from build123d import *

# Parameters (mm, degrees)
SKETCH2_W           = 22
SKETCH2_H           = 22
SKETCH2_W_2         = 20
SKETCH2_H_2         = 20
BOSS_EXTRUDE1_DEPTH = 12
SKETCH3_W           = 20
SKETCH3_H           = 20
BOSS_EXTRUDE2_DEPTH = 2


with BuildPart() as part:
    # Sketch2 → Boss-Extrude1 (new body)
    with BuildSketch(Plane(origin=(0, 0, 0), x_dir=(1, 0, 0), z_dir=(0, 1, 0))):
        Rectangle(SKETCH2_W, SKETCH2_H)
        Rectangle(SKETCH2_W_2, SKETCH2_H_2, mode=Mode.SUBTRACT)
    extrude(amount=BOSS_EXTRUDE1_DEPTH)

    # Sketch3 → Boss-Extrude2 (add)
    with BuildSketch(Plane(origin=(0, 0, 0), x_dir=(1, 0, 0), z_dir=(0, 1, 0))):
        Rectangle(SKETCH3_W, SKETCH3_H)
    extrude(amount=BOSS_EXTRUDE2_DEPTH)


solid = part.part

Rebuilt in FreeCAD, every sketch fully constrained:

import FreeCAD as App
import Part
import Sketcher
from FreeCAD import Vector


def add_polygon(sketch, points):
    """Adds a closed chain of lines whose ends are joined by coincident constraints."""
    first, n = sketch.GeometryCount, len(points)
    for a, b in zip(points, points[1:] + points[:1]):
        sketch.addGeometry(Part.LineSegment(App.Vector(*a, 0), App.Vector(*b, 0)), False)
    for i in range(n):
        sketch.addConstraint(Sketcher.Constraint("Coincident", first + i, 2, first + (i + 1) % n, 1))

doc = App.newDocument("Part")
body = doc.addObject("PartDesign::Body", "Body")

# Sketch on XZ plane
sketch1 = doc.addObject("Sketcher::SketchObject", "Sketch")
body.addObject(sketch1)
sketch1.AttachmentSupport = (doc.XZ_Plane, [""])
sketch1.MapMode = "FlatFace"
add_polygon(sketch1, [(-11, -11), (-11, 11), (11, 11), (11, -11)])  # lines 0-3
add_polygon(sketch1, [(10, 10), (-10, 10), (-10, -10), (10, -10)])  # lines 4-7
sketch1.addConstraint(Sketcher.Constraint("Vertical", 0))
sketch1.addConstraint(Sketcher.Constraint("Horizontal", 1))
sketch1.addConstraint(Sketcher.Constraint("Vertical", 2))
sketch1.addConstraint(Sketcher.Constraint("Horizontal", 3))
sketch1.addConstraint(Sketcher.Constraint("Horizontal", 4))
sketch1.addConstraint(Sketcher.Constraint("Vertical", 5))
sketch1.addConstraint(Sketcher.Constraint("Horizontal", 6))
sketch1.addConstraint(Sketcher.Constraint("Vertical", 7))
sketch1.addConstraint(Sketcher.Constraint("Symmetric", 0, 2, 2, 2, -1, 1))
sketch1.addConstraint(Sketcher.Constraint("Symmetric", 4, 2, 6, 2, -1, 1))
sketch1.addConstraint(Sketcher.Constraint("Equal", 3, 0))
sketch1.addConstraint(Sketcher.Constraint("Equal", 6, 5))
sketch1.addConstraint(Sketcher.Constraint("DistanceX", 1, 1, 1, 2, 22.0))
sketch1.addConstraint(Sketcher.Constraint("DistanceX", 4, 2, 4, 1, 20.0))
pad1 = doc.addObject("PartDesign::Pad", "Pad")
body.addObject(pad1)
pad1.Profile = sketch1
pad1.Length = 12
pad1.Reversed = True

# Sketch on XZ plane
sketch2 = doc.addObject("Sketcher::SketchObject", "Sketch001")
body.addObject(sketch2)
sketch2.AttachmentSupport = (doc.XZ_Plane, [""])
sketch2.MapMode = "FlatFace"
add_polygon(sketch2, [(-10, -10), (-10, 10), (10, 10), (10, -10)])  # lines 0-3
sketch2.addConstraint(Sketcher.Constraint("Vertical", 0))
sketch2.addConstraint(Sketcher.Constraint("Horizontal", 1))
sketch2.addConstraint(Sketcher.Constraint("Vertical", 2))
sketch2.addConstraint(Sketcher.Constraint("Horizontal", 3))
sketch2.addConstraint(Sketcher.Constraint("Symmetric", 0, 2, 2, 2, -1, 1))
sketch2.addConstraint(Sketcher.Constraint("Equal", 3, 0))
sketch2.addConstraint(Sketcher.Constraint("DistanceX", 1, 1, 1, 2, 20.0))
pad2 = doc.addObject("PartDesign::Pad", "Pad001")
body.addObject(pad2)
pad2.Profile = sketch2
pad2.Length = 2
pad2.Reversed = True

doc.recompute()
